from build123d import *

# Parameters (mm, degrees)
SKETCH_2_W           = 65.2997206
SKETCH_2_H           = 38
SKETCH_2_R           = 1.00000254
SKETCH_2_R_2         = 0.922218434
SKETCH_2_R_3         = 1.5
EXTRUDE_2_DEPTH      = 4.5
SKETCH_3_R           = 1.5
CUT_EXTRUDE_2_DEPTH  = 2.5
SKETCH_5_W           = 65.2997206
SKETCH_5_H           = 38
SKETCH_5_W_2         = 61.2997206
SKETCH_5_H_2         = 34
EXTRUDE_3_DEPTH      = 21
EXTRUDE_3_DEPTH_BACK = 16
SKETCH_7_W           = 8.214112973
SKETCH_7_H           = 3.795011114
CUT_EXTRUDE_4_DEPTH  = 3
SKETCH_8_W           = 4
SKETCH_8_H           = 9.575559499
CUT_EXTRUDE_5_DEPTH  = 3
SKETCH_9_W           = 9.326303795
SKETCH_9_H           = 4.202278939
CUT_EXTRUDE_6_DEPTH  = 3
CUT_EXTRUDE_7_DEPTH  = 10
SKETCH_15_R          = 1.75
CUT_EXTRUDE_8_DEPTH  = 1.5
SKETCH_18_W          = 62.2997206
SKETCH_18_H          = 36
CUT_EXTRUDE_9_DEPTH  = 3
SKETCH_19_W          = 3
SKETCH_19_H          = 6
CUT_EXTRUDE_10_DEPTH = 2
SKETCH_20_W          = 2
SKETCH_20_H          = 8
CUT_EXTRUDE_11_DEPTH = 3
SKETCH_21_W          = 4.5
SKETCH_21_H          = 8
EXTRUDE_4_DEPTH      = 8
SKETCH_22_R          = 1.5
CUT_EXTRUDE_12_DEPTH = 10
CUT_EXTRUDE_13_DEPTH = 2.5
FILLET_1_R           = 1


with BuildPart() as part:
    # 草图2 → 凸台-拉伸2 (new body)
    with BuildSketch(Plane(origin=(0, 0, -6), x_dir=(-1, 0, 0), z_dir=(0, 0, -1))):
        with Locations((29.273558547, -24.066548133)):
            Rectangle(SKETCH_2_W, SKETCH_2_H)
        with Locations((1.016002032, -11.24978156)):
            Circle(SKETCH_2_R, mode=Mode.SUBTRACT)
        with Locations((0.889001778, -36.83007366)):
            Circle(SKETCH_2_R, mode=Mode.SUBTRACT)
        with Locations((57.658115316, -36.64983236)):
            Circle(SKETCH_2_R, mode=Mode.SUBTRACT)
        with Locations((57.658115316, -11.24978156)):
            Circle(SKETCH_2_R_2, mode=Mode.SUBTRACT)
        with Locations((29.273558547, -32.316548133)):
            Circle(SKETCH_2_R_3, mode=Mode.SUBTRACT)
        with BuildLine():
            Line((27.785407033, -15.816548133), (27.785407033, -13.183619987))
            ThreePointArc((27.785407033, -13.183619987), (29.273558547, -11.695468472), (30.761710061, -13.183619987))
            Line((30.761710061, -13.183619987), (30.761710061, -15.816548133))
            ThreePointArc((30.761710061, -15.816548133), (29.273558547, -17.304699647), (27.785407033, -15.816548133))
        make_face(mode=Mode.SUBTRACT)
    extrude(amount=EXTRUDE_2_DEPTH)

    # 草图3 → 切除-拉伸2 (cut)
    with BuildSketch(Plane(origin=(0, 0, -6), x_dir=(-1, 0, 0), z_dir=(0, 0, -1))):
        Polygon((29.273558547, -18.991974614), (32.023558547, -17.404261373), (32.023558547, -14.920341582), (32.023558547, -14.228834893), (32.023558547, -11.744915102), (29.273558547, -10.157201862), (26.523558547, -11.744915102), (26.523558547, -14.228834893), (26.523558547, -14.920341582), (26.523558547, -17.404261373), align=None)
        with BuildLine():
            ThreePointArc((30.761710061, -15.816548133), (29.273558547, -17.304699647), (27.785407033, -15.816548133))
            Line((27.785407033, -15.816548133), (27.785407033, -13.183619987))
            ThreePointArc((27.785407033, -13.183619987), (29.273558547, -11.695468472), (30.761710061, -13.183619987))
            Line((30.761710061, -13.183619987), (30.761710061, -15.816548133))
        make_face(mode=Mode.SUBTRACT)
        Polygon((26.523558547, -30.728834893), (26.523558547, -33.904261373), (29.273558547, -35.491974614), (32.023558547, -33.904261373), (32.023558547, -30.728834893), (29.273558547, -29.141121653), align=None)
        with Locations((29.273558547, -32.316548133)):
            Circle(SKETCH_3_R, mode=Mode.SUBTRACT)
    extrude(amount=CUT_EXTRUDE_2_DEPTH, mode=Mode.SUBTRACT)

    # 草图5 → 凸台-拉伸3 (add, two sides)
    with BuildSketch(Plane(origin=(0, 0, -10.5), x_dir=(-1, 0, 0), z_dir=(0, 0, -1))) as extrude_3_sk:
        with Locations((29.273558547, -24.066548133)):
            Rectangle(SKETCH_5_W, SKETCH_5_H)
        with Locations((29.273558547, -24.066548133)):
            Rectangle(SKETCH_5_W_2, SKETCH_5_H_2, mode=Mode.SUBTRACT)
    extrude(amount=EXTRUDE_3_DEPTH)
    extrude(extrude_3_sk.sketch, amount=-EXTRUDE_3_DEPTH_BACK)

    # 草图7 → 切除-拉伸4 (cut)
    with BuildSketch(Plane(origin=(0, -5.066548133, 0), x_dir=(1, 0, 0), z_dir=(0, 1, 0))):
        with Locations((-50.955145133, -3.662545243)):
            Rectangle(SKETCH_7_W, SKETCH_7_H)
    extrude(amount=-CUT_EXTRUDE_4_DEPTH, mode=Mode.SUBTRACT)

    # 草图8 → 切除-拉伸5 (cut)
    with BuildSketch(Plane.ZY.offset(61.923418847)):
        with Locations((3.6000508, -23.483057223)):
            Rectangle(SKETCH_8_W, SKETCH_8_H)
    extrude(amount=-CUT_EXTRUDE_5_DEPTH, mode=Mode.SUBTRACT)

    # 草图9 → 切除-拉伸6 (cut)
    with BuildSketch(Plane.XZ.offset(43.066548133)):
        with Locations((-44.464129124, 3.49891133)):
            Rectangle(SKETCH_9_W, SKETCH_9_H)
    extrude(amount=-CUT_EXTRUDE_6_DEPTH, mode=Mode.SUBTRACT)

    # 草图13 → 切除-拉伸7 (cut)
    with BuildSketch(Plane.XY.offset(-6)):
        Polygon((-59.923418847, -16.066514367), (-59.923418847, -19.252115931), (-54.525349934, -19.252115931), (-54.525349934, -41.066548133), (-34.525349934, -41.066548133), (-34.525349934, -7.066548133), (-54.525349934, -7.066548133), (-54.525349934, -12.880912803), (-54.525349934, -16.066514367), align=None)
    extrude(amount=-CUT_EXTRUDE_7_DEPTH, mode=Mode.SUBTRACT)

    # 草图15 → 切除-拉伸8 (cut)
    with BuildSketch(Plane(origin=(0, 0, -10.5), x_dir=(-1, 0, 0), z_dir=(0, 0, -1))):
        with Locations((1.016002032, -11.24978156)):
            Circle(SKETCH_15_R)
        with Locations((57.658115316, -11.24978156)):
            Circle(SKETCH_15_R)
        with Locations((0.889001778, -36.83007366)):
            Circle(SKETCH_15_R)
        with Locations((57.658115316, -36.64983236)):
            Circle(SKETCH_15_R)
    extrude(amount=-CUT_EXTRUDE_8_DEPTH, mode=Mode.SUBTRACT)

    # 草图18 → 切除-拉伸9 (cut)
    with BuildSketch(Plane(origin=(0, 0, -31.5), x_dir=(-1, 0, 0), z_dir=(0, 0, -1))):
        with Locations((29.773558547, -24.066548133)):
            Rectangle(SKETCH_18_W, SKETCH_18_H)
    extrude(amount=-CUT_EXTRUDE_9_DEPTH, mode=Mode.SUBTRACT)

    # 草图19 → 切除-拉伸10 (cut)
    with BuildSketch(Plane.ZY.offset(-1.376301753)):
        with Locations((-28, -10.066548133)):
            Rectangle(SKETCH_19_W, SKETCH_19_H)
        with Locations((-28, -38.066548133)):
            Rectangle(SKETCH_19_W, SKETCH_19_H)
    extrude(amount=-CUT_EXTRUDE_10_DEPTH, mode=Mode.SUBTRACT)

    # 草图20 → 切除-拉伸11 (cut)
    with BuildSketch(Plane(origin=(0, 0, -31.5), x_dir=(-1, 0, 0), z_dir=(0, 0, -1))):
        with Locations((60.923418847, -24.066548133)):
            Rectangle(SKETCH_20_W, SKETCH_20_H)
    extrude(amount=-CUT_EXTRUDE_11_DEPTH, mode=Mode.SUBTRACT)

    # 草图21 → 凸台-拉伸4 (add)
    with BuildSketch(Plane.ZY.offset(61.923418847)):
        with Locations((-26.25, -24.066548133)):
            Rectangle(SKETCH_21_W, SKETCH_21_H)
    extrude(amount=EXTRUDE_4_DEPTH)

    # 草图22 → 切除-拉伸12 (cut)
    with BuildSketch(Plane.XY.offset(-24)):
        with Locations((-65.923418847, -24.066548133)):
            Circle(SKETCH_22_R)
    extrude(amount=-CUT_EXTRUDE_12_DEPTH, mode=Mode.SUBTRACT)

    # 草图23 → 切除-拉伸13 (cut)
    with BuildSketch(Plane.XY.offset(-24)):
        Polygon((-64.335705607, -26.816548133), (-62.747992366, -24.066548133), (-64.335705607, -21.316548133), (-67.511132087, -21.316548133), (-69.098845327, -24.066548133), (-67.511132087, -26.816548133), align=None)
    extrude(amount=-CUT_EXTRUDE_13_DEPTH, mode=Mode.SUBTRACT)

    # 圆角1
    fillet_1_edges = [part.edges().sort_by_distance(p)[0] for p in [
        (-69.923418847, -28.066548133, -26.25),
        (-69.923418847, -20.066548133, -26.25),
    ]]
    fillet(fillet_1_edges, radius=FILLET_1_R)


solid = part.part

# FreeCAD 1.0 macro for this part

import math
import FreeCAD as App
import Part
import Sketcher

V = App.Vector
Q = App.Units.Quantity


def edges_at(feature, points):
    """Names of the edges that pass closest to the given points."""
    edges = feature.Shape.Edges
    near = lambda p: min(range(len(edges)), key=lambda i: edges[i].distToShape(Part.Vertex(*p))[0])
    return sorted({f"Edge{near(p) + 1}" for p in points})


def add_polygon(sketch, points):
    """Adds a closed chain of lines whose ends are joined by coincident constraints."""
    first, n = sketch.GeometryCount, len(points)
    for a, b in zip(points, points[1:] + points[:1]):
        sketch.addGeometry(Part.LineSegment(App.Vector(*a, 0), App.Vector(*b, 0)), False)
    for i in range(n):
        sketch.addConstraint(Sketcher.Constraint("Coincident", first + i, 2, first + (i + 1) % n, 1))

doc = App.newDocument("Part")
body = doc.addObject("PartDesign::Body", "Body")

sketch1 = doc.addObject("Sketcher::SketchObject", "Sketch")
body.addObject(sketch1)
sketch1.AttachmentSupport = (doc.XY_Plane, [""])
sketch1.MapMode = "FlatFace"
sketch1.AttachmentOffset = App.Placement(V(0, 0, -6), App.Rotation())
add_polygon(sketch1, [(3.4, -5.1), (3.4, -43.1), (-61.9, -43.1), (-61.9, -5.1)])
sketch1.addGeometry(Part.Circle(V(-0.9, -36.8, 0), V(0, 0, 1), 1), False)
sketch1.addGeometry(Part.Circle(V(-29.3, -32.3, 0), V(0, 0, 1), 1.5), False)
sketch1.addGeometry(Part.Circle(V(-57.7, -36.6, 0), V(0, 0, 1), 1), False)
sketch1.addGeometry(Part.Circle(V(-1, -11.2, 0), V(0, 0, 1), 1), False)
sketch1.addGeometry(Part.ArcOfCircle(Part.Circle(V(-29.3, -15.8, 0), V(0, 0, 1), 1.5), math.radians(180), math.radians(360)), False)
sketch1.addGeometry(Part.LineSegment(V(-27.8, -15.8, 0), V(-27.8, -13.2, 0)), False)
sketch1.addGeometry(Part.ArcOfCircle(Part.Circle(V(-29.3, -13.2, 0), V(0, 0, 1), 1.5), math.radians(0), math.radians(180)), False)
sketch1.addGeometry(Part.LineSegment(V(-30.8, -13.2, 0), V(-30.8, -15.8, 0)), False)
sketch1.addGeometry(Part.Circle(V(-57.7, -11.2, 0), V(0, 0, 1), 0.9), False)
sketch1.addConstraint(Sketcher.Constraint("Tangent", 8, 2, 9, 1))
sketch1.addConstraint(Sketcher.Constraint("Tangent", 9, 2, 10, 1))
sketch1.addConstraint(Sketcher.Constraint("Tangent", 10, 2, 11, 1))
sketch1.addConstraint(Sketcher.Constraint("Tangent", 11, 2, 8, 1))
sketch1.addConstraint(Sketcher.Constraint("Vertical", 0))
sketch1.addConstraint(Sketcher.Constraint("Horizontal", 1))
sketch1.addConstraint(Sketcher.Constraint("Vertical", 2))
sketch1.addConstraint(Sketcher.Constraint("Horizontal", 3))
sketch1.addConstraint(Sketcher.Constraint("Vertical", 9))
sketch1.addConstraint(Sketcher.Constraint("Vertical", 11))
sketch1.addConstraint(Sketcher.Constraint("Equal", 4, 6))
sketch1.addConstraint(Sketcher.Constraint("Equal", 6, 7))
sketch1.addConstraint(Sketcher.Constraint("Horizontal", 7, 3, 12, 3))
sketch1.addConstraint(Sketcher.Constraint("Vertical", 5, 3, 8, 3))
sketch1.addConstraint(Sketcher.Constraint("Vertical", 6, 3, 12, 3))
sketch1.addConstraint(Sketcher.Constraint("Diameter", 5, Q("3 mm")))
sketch1.addConstraint(Sketcher.Constraint("DistanceY", 0, 2, 0, 1, Q("38 mm")))
sketch1.addConstraint(Sketcher.Constraint("DistanceY", 5, 3, 8, 3, Q("16.5 mm")))
sketch1.addConstraint(Sketcher.Constraint("Radius", 8, Q("1.488152 mm")))
sketch1.addConstraint(Sketcher.Constraint("DistanceY", 0, 2, 5, 3, Q("10.75 mm")))
sketch1.addConstraint(Sketcher.Constraint("Diameter", 4, Q("2.000005 mm")))
sketch1.addConstraint(Sketcher.Constraint("Diameter", 12, Q("1.844437 mm")))
sketch1.addConstraint(Sketcher.Constraint("DistanceX", 4, 3, -1, 1, Q("0.889002 mm")))
sketch1.addConstraint(Sketcher.Constraint("DistanceX", 7, 3, 4, 3, Q("0.127 mm")))
sketch1.addConstraint(Sketcher.Constraint("DistanceX", 1, 2, 1, 1, Q("65.299721 mm")))
sketch1.addConstraint(Sketcher.Constraint("DistanceY", 9, 1, 9, 2, Q("2.632928 mm")))
sketch1.addConstraint(Sketcher.Constraint("DistanceX", -1, 1, 0, 2, Q("3.376302 mm")))
sketch1.addConstraint(Sketcher.Constraint("DistanceX", 5, 3, -1, 1, Q("29.273559 mm")))
sketch1.addConstraint(Sketcher.Constraint("DistanceY", 5, 3, -1, 1, Q("32.316548 mm")))
sketch1.addConstraint(Sketcher.Constraint("DistanceY", 7, 3, -1, 1, Q("11.249782 mm")))
sketch1.addConstraint(Sketcher.Constraint("DistanceY", 4, 3, 6, 3, Q("0.180241 mm")))
sketch1.addConstraint(Sketcher.Constraint("DistanceY", 6, 3, 7, 3, Q("25.400051 mm")))
sketch1.addConstraint(Sketcher.Constraint("DistanceX", 12, 3, 8, 2, Q("29.872708 mm")))
pad1 = doc.addObject("PartDesign::Pad", "Pad")
body.addObject(pad1)
pad1.Profile = sketch1
pad1.Length = 4.5
pad1.Reversed = True

sketch2 = doc.addObject("Sketcher::SketchObject", "Sketch001")
body.addObject(sketch2)
sketch2.AttachmentSupport = (doc.XY_Plane, [""])
sketch2.MapMode = "FlatFace"
sketch2.AttachmentOffset = App.Placement(V(0, 0, -6), App.Rotation())
add_polygon(sketch2, [(-29.3, -19), (-32, -17.4), (-32, -11.7), (-29.3, -10.2), (-26.5, -11.7), (-26.5, -17.4)])
sketch2.addGeometry(Part.LineSegment(V(-30.8, -13.2, 0), V(-30.8, -15.8, 0)), False)
sketch2.addGeometry(Part.ArcOfCircle(Part.Circle(V(-29.3, -15.8, 0), V(0, 0, 1), 1.5), math.radians(180), math.radians(360)), False)
sketch2.addGeometry(Part.LineSegment(V(-27.8, -15.8, 0), V(-27.8, -13.2, 0)), False)
sketch2.addGeometry(Part.ArcOfCircle(Part.Circle(V(-29.3, -13.2, 0), V(0, 0, 1), 1.5), math.radians(0), math.radians(180)), False)
add_polygon(sketch2, [(-26.5, -30.7), (-26.5, -33.9), (-29.3, -35.5), (-32, -33.9), (-32, -30.7), (-29.3, -29.1)])
sketch2.addGeometry(Part.Circle(V(-29.3, -32.3, 0), V(0, 0, 1), 1.5), False)
sketch2.addConstraint(Sketcher.Constraint("Tangent", 6, 2, 7, 1))
sketch2.addConstraint(Sketcher.Constraint("Tangent", 7, 2, 8, 1))
sketch2.addConstraint(Sketcher.Constraint("Tangent", 8, 2, 9, 1))
sketch2.addConstraint(Sketcher.Constraint("Tangent", 9, 2, 6, 1))
sketch2.addConstraint(Sketcher.Constraint("Vertical", 1))
sketch2.addConstraint(Sketcher.Constraint("Vertical", 4))
sketch2.addConstraint(Sketcher.Constraint("Vertical", 6))
sketch2.addConstraint(Sketcher.Constraint("Vertical", 8))
sketch2.addConstraint(Sketcher.Constraint("Vertical", 10))
sketch2.addConstraint(Sketcher.Constraint("Vertical", 13))
sketch2.addConstraint(Sketcher.Constraint("Parallel", 0, 3))
sketch2.addConstraint(Sketcher.Constraint("Parallel", 2, 5))
sketch2.addConstraint(Sketcher.Constraint("Parallel", 5, 11))
sketch2.addConstraint(Sketcher.Constraint("Parallel", 3, 12))
sketch2.addConstraint(Sketcher.Constraint("Parallel", 11, 14))
sketch2.addConstraint(Sketcher.Constraint("Parallel", 12, 15))
sketch2.addConstraint(Sketcher.Constraint("Horizontal", 1, 2, 3, 2))
sketch2.addConstraint(Sketcher.Constraint("Horizontal", 0, 2, 4, 2))
sketch2.addConstraint(Sketcher.Constraint("Horizontal", 10, 2, 12, 2))
sketch2.addConstraint(Sketcher.Constraint("Horizontal", 13, 2, 15, 2))
sketch2.addConstraint(Sketcher.Constraint("Vertical", 9, 3, 16, 3))
sketch2.addConstraint(Sketcher.Constraint("Vertical", 16, 3, 2, 2))
sketch2.addConstraint(Sketcher.Constraint("Vertical", 2, 2, 5, 2))
sketch2.addConstraint(Sketcher.Constraint("Vertical", 4, 2, 10, 2))
sketch2.addConstraint(Sketcher.Constraint("Vertical", 5, 2, 11, 2))
sketch2.addConstraint(Sketcher.Constraint("Diameter", 16, Q("3 mm")))
sketch2.addConstraint(Sketcher.Constraint("Angle", 0, Q("150 deg")))
sketch2.addConstraint(Sketcher.Constraint("DistanceY", 16, 3, 7, 3, Q("16.5 mm")))
sketch2.addConstraint(Sketcher.Constraint("DistanceX", 1, 2, 3, 2, Q("5.5 mm")))
sketch2.addConstraint(Sketcher.Constraint("DistanceY", 10, 2, 4, 2, Q("16.5 mm")))
sketch2.addConstraint(Sketcher.Constraint("Radius", 7, Q("1.488152 mm")))
sketch2.addConstraint(Sketcher.Constraint("DistanceY", 6, 2, 6, 1, Q("2.632928 mm")))
sketch2.addConstraint(Sketcher.Constraint("DistanceY", 2, 2, -1, 1, Q("10.157202 mm")))
sketch2.addConstraint(Sketcher.Constraint("DistanceY", 1, 1, 1, 2, Q("5.659346 mm")))
sketch2.addConstraint(Sketcher.Constraint("DistanceY", 10, 2, 10, 1, Q("3.175426 mm")))
sketch2.addConstraint(Sketcher.Constraint("DistanceX", 7, 3, -1, 1, Q("29.273559 mm")))
sketch2.addConstraint(Sketcher.Constraint("DistanceY", 7, 3, -1, 1, Q("15.816548 mm")))
pocket1 = doc.addObject("PartDesign::Pocket", "Pocket")
body.addObject(pocket1)
pocket1.Profile = sketch2
pocket1.Length = 2.5

sketch3 = doc.addObject("Sketcher::SketchObject", "Sketch002")
body.addObject(sketch3)
sketch3.AttachmentSupport = (doc.XY_Plane, [""])
sketch3.MapMode = "FlatFace"
sketch3.AttachmentOffset = App.Placement(V(0, 0, -10.5), App.Rotation())
add_polygon(sketch3, [(3, -5), (3, -43), (-62, -43), (-62, -5)])
add_polygon(sketch3, [(-60, -41), (1, -41), (1, -7), (-60, -7)])
sketch3.addConstraint(Sketcher.Constraint("Vertical", 0))
sketch3.addConstraint(Sketcher.Constraint("Horizontal", 1))
sketch3.addConstraint(Sketcher.Constraint("Vertical", 2))
sketch3.addConstraint(Sketcher.Constraint("Horizontal", 3))
sketch3.addConstraint(Sketcher.Constraint("Horizontal", 4))
sketch3.addConstraint(Sketcher.Constraint("Vertical", 5))
sketch3.addConstraint(Sketcher.Constraint("Horizontal", 6))
sketch3.addConstraint(Sketcher.Constraint("Vertical", 7))
sketch3.addConstraint(Sketcher.Constraint("DistanceY", 0, 2, 0, 1, Q("38 mm")))
sketch3.addConstraint(Sketcher.Constraint("DistanceY", 5, 1, 5, 2, Q("34 mm")))
sketch3.addConstraint(Sketcher.Constraint("DistanceX", 4, 2, 0, 2, Q("2 mm")))
sketch3.addConstraint(Sketcher.Constraint("DistanceY", 0, 2, 4, 2, Q("2 mm")))
sketch3.addConstraint(Sketcher.Constraint("DistanceX", 2, 2, 6, 2, Q("2 mm")))
sketch3.addConstraint(Sketcher.Constraint("DistanceX", 1, 2, 1, 1, Q("65.299721 mm")))
sketch3.addConstraint(Sketcher.Constraint("DistanceX", -1, 1, 0, 2, Q("3.376302 mm")))
sketch3.addConstraint(Sketcher.Constraint("DistanceY", 0, 2, -1, 1, Q("43.066548 mm")))
pad2 = doc.addObject("PartDesign::Pad", "Pad001")
body.addObject(pad2)
pad2.Profile = sketch3
pad2.Type = "TwoLengths"
pad2.Length = 21
pad2.Length2 = 16
pad2.Reversed = True

sketch4 = doc.addObject("Sketcher::SketchObject", "Sketch003")
body.addObject(sketch4)
sketch4.AttachmentSupport = (doc.XZ_Plane, [""])
sketch4.MapMode = "FlatFace"
sketch4.AttachmentOffset = App.Placement(V(0, 0, 5.066548), App.Rotation())
add_polygon(sketch4, [(-55.1, 1.8), (-55.1, 5.6), (-46.8, 5.6), (-46.8, 1.8)])
sketch4.addConstraint(Sketcher.Constraint("Vertical", 0))
sketch4.addConstraint(Sketcher.Constraint("Horizontal", 1))
sketch4.addConstraint(Sketcher.Constraint("Vertical", 2))
sketch4.addConstraint(Sketcher.Constraint("Horizontal", 3))
sketch4.addConstraint(Sketcher.Constraint("DistanceY", 0, 1, 0, 2, Q("3.795011 mm")))
sketch4.addConstraint(Sketcher.Constraint("DistanceX", 0, 2, -1, 1, Q("55.062202 mm")))
sketch4.addConstraint(Sketcher.Constraint("DistanceX", 1, 1, 1, 2, Q("8.214113 mm")))
sketch4.addConstraint(Sketcher.Constraint("DistanceY", -1, 1, 0, 2, Q("5.560051 mm")))
pocket2 = doc.addObject("PartDesign::Pocket", "Pocket001")
body.addObject(pocket2)
pocket2.Profile = sketch4
pocket2.Length = 3
pocket2.Reversed = True

sketch5 = doc.addObject("Sketcher::SketchObject", "Sketch004")
body.addObject(sketch5)
sketch5.AttachmentSupport = (doc.YZ_Plane, [""])
sketch5.MapMode = "FlatFace"
sketch5.AttachmentOffset = App.Placement(V(0, 0, -61.923419), App.Rotation())
add_polygon(sketch5, [(-18.7, 1.6), (-28.3, 1.6), (-28.3, 5.6), (-18.7, 5.6)])
sketch5.addConstraint(Sketcher.Constraint("Horizontal", 0))
sketch5.addConstraint(Sketcher.Constraint("Vertical", 1))
sketch5.addConstraint(Sketcher.Constraint("Horizontal", 2))
sketch5.addConstraint(Sketcher.Constraint("Vertical", 3))
sketch5.addConstraint(Sketcher.Constraint("DistanceY", 1, 1, 1, 2, Q("4 mm")))
sketch5.addConstraint(Sketcher.Constraint("DistanceX", 0, 2, 0, 1, Q("9.575559 mm")))
sketch5.addConstraint(Sketcher.Constraint("DistanceY", -1, 1, 0, 2, Q("1.600051 mm")))
sketch5.addConstraint(Sketcher.Constraint("DistanceX", 0, 2, -1, 1, Q("28.270837 mm")))
pocket3 = doc.addObject("PartDesign::Pocket", "Pocket002")
body.addObject(pocket3)
pocket3.Profile = sketch5
pocket3.Length = 3
pocket3.Reversed = True

sketch6 = doc.addObject("Sketcher::SketchObject", "Sketch005")
body.addObject(sketch6)
sketch6.AttachmentSupport = (doc.XZ_Plane, [""])
sketch6.MapMode = "FlatFace"
sketch6.AttachmentOffset = App.Placement(V(0, 0, 43.066548), App.Rotation())
add_polygon(sketch6, [(-49.1, 5.6), (-49.1, 1.4), (-39.8, 1.4), (-39.8, 5.6)])
sketch6.addConstraint(Sketcher.Constraint("Vertical", 0))
sketch6.addConstraint(Sketcher.Constraint("Horizontal", 1))
sketch6.addConstraint(Sketcher.Constraint("Vertical", 2))
sketch6.addConstraint(Sketcher.Constraint("Horizontal", 3))
sketch6.addConstraint(Sketcher.Constraint("DistanceY", 0, 2, 0, 1, Q("4.202279 mm")))
sketch6.addConstraint(Sketcher.Constraint("DistanceX", 1, 1, 1, 2, Q("9.326304 mm")))
sketch6.addConstraint(Sketcher.Constraint("DistanceX", 0, 2, -1, 1, Q("49.127281 mm")))
sketch6.addConstraint(Sketcher.Constraint("DistanceY", -1, 1, 0, 2, Q("1.397772 mm")))
pocket4 = doc.addObject("PartDesign::Pocket", "Pocket003")
body.addObject(pocket4)
pocket4.Profile = sketch6
pocket4.Length = 3

sketch7 = doc.addObject("Sketcher::SketchObject", "Sketch006")
body.addObject(sketch7)
sketch7.AttachmentSupport = (doc.XY_Plane, [""])
sketch7.MapMode = "FlatFace"
sketch7.AttachmentOffset = App.Placement(V(0, 0, -6), App.Rotation())
add_polygon(sketch7, [(-59.9, -16.1), (-59.9, -19.3), (-54.5, -19.3), (-54.5, -41.1), (-34.5, -41.1), (-34.5, -7.1), (-54.5, -7.1), (-54.5, -16.1)])
sketch7.addConstraint(Sketcher.Constraint("Vertical", 0))
sketch7.addConstraint(Sketcher.Constraint("Horizontal", 1))
sketch7.addConstraint(Sketcher.Constraint("Vertical", 2))
sketch7.addConstraint(Sketcher.Constraint("Horizontal", 3))
sketch7.addConstraint(Sketcher.Constraint("Vertical", 4))
sketch7.addConstraint(Sketcher.Constraint("Horizontal", 5))
sketch7.addConstraint(Sketcher.Constraint("Vertical", 6))
sketch7.addConstraint(Sketcher.Constraint("Horizontal", 7))
sketch7.addConstraint(Sketcher.Constraint("Vertical", 2, 2, 5, 2))
sketch7.addConstraint(Sketcher.Constraint("DistanceX", 3, 1, 3, 2, Q("20 mm")))
sketch7.addConstraint(Sketcher.Constraint("DistanceY", 4, 1, 4, 2, Q("34 mm")))
sketch7.addConstraint(Sketcher.Constraint("DistanceY", 0, 2, 0, 1, Q("3.185602 mm")))
sketch7.addConstraint(Sketcher.Constraint("DistanceX", 1, 1, 1, 2, Q("5.398069 mm")))
sketch7.addConstraint(Sketcher.Constraint("DistanceY", 2, 2, 2, 1, Q("21.814432 mm")))
sketch7.addConstraint(Sketcher.Constraint("DistanceX", 0, 2, -1, 1, Q("59.923419 mm")))
sketch7.addConstraint(Sketcher.Constraint("DistanceY", 2, 2, -1, 1, Q("41.066548 mm")))
pocket5 = doc.addObject("PartDesign::Pocket", "Pocket004")
body.addObject(pocket5)
pocket5.Profile = sketch7
pocket5.Length = 10

sketch8 = doc.addObject("Sketcher::SketchObject", "Sketch007")
body.addObject(sketch8)
sketch8.AttachmentSupport = (doc.XY_Plane, [""])
sketch8.MapMode = "FlatFace"
sketch8.AttachmentOffset = App.Placement(V(0, 0, -10.5), App.Rotation())
sketch8.addGeometry(Part.Circle(V(-1, -11.2, 0), V(0, 0, 1), 1.8), False)
sketch8.addGeometry(Part.Circle(V(-57.7, -11.2, 0), V(0, 0, 1), 1.8), False)
sketch8.addGeometry(Part.Circle(V(-0.9, -36.8, 0), V(0, 0, 1), 1.8), False)
sketch8.addGeometry(Part.Circle(V(-57.7, -36.6, 0), V(0, 0, 1), 1.8), False)
sketch8.addConstraint(Sketcher.Constraint("Equal", 0, 1))
sketch8.addConstraint(Sketcher.Constraint("Equal", 1, 2))
sketch8.addConstraint(Sketcher.Constraint("Equal", 2, 3))
sketch8.addConstraint(Sketcher.Constraint("Horizontal", 0, 3, 1, 3))
sketch8.addConstraint(Sketcher.Constraint("Vertical", 1, 3, 3, 3))
sketch8.addConstraint(Sketcher.Constraint("Diameter", 0, Q("3.5 mm")))
sketch8.addConstraint(Sketcher.Constraint("DistanceX", 2, 3, -1, 1, Q("0.889002 mm")))
sketch8.addConstraint(Sketcher.Constraint("DistanceX", 0, 3, 2, 3, Q("0.127 mm")))
sketch8.addConstraint(Sketcher.Constraint("DistanceY", 0, 3, -1, 1, Q("11.249782 mm")))
sketch8.addConstraint(Sketcher.Constraint("DistanceY", 3, 3, 1, 3, Q("25.400051 mm")))
sketch8.addConstraint(Sketcher.Constraint("DistanceY", 2, 3, 3, 3, Q("0.180241 mm")))
sketch8.addConstraint(Sketcher.Constraint("DistanceX", 1, 3, -1, 1, Q("57.658115 mm")))
pocket6 = doc.addObject("PartDesign::Pocket", "Pocket005")
body.addObject(pocket6)
pocket6.Profile = sketch8
pocket6.Length = 1.5
pocket6.Reversed = True

sketch9 = doc.addObject("Sketcher::SketchObject", "Sketch008")
body.addObject(sketch9)
sketch9.AttachmentSupport = (doc.XY_Plane, [""])
sketch9.MapMode = "FlatFace"
sketch9.AttachmentOffset = App.Placement(V(0, 0, -31.5), App.Rotation())
add_polygon(sketch9, [(1, -6), (1, -42), (-61, -42), (-61, -6)])
sketch9.addConstraint(Sketcher.Constraint("Vertical", 0))
sketch9.addConstraint(Sketcher.Constraint("Horizontal", 1))
sketch9.addConstraint(Sketcher.Constraint("Vertical", 2))
sketch9.addConstraint(Sketcher.Constraint("Horizontal", 3))
sketch9.addConstraint(Sketcher.Constraint("DistanceY", 0, 2, 0, 1, Q("36 mm")))
sketch9.addConstraint(Sketcher.Constraint("DistanceX", 1, 2, 1, 1, Q("62.299721 mm")))
sketch9.addConstraint(Sketcher.Constraint("DistanceX", -1, 1, 0, 2, Q("1.376302 mm")))
sketch9.addConstraint(Sketcher.Constraint("DistanceY", 0, 2, -1, 1, Q("42.066548 mm")))
pocket7 = doc.addObject("PartDesign::Pocket", "Pocket006")
body.addObject(pocket7)
pocket7.Profile = sketch9
pocket7.Length = 3
pocket7.Reversed = True

sketch10 = doc.addObject("Sketcher::SketchObject", "Sketch009")
body.addObject(sketch10)
sketch10.AttachmentSupport = (doc.YZ_Plane, [""])
sketch10.MapMode = "FlatFace"
sketch10.AttachmentOffset = App.Placement(V(0, 0, 1.376302), App.Rotation())
add_polygon(sketch10, [(-7.1, -29.5), (-13.1, -29.5), (-13.1, -26.5), (-7.1, -26.5)])
add_polygon(sketch10, [(-35.1, -29.5), (-41.1, -29.5), (-41.1, -26.5), (-35.1, -26.5)])
sketch10.addConstraint(Sketcher.Constraint("Horizontal", 0))
sketch10.addConstraint(Sketcher.Constraint("Vertical", 1))
sketch10.addConstraint(Sketcher.Constraint("Horizontal", 2))
sketch10.addConstraint(Sketcher.Constraint("Vertical", 3))
sketch10.addConstraint(Sketcher.Constraint("Horizontal", 4))
sketch10.addConstraint(Sketcher.Constraint("Vertical", 5))
sketch10.addConstraint(Sketcher.Constraint("Horizontal", 6))
sketch10.addConstraint(Sketcher.Constraint("Vertical", 7))
sketch10.addConstraint(Sketcher.Constraint("Horizontal", 3, 2, 4, 2))
sketch10.addConstraint(Sketcher.Constraint("Horizontal", 2, 2, 5, 2))
sketch10.addConstraint(Sketcher.Constraint("Equal", 2, 4))
sketch10.addConstraint(Sketcher.Constraint("DistanceX", 0, 2, 0, 1, Q("6 mm")))
sketch10.addConstraint(Sketcher.Constraint("DistanceY", 1, 1, 1, 2, Q("3 mm")))
sketch10.addConstraint(Sketcher.Constraint("DistanceX", 4, 2, 0, 2, Q("28 mm")))
sketch10.addConstraint(Sketcher.Constraint("DistanceY", 0, 2, -1, 1, Q("29.5 mm")))
sketch10.addConstraint(Sketcher.Constraint("DistanceX", 0, 2, -1, 1, Q("13.066548 mm")))
pocket8 = doc.addObject("PartDesign::Pocket", "Pocket007")
body.addObject(pocket8)
pocket8.Profile = sketch10
pocket8.Length = 2
pocket8.Reversed = True

sketch11 = doc.addObject("Sketcher::SketchObject", "Sketch010")
body.addObject(sketch11)
sketch11.AttachmentSupport = (doc.XY_Plane, [""])
sketch11.MapMode = "FlatFace"
sketch11.AttachmentOffset = App.Placement(V(0, 0, -31.5), App.Rotation())
add_polygon(sketch11, [(-59.9, -20.1), (-59.9, -28.1), (-61.9, -28.1), (-61.9, -20.1)])
sketch11.addConstraint(Sketcher.Constraint("Vertical", 0))
sketch11.addConstraint(Sketcher.Constraint("Horizontal", 1))
sketch11.addConstraint(Sketcher.Constraint("Vertical", 2))
sketch11.addConstraint(Sketcher.Constraint("Horizontal", 3))
sketch11.addConstraint(Sketcher.Constraint("DistanceX", 1, 2, 1, 1, Q("2 mm")))
sketch11.addConstraint(Sketcher.Constraint("DistanceY", 0, 2, 0, 1, Q("8 mm")))
sketch11.addConstraint(Sketcher.Constraint("DistanceX", 0, 2, -1, 1, Q("59.923419 mm")))
sketch11.addConstraint(Sketcher.Constraint("DistanceY", 0, 2, -1, 1, Q("28.066548 mm")))
pocket9 = doc.addObject("PartDesign::Pocket", "Pocket008")
body.addObject(pocket9)
pocket9.Profile = sketch11
pocket9.Length = 3
pocket9.Reversed = True

sketch12 = doc.addObject("Sketcher::SketchObject", "Sketch011")
body.addObject(sketch12)
sketch12.AttachmentSupport = (doc.YZ_Plane, [""])
sketch12.MapMode = "FlatFace"
sketch12.AttachmentOffset = App.Placement(V(0, 0, -61.923419), App.Rotation())
add_polygon(sketch12, [(-20.1, -28.5), (-28.1, -28.5), (-28.1, -24), (-20.1, -24)])
sketch12.addConstraint(Sketcher.Constraint("Horizontal", 0))
sketch12.addConstraint(Sketcher.Constraint("Vertical", 1))
sketch12.addConstraint(Sketcher.Constraint("Horizontal", 2))
sketch12.addConstraint(Sketcher.Constraint("Vertical", 3))
sketch12.addConstraint(Sketcher.Constraint("DistanceX", 0, 2, 0, 1, Q("8 mm")))
sketch12.addConstraint(Sketcher.Constraint("DistanceY", 1, 1, 1, 2, Q("4.5 mm")))
sketch12.addConstraint(Sketcher.Constraint("DistanceY", 1, 2, -1, 1, Q("24 mm")))
sketch12.addConstraint(Sketcher.Constraint("DistanceX", 0, 2, -1, 1, Q("28.066548 mm")))
pad3 = doc.addObject("PartDesign::Pad", "Pad002")
body.addObject(pad3)
pad3.Profile = sketch12
pad3.Length = 8
pad3.Reversed = True

sketch13 = doc.addObject("Sketcher::SketchObject", "Sketch012")
body.addObject(sketch13)
sketch13.AttachmentSupport = (doc.XY_Plane, [""])
sketch13.MapMode = "FlatFace"
sketch13.AttachmentOffset = App.Placement(V(0, 0, -24), App.Rotation())
sketch13.addGeometry(Part.Circle(V(-65.9, -24.1, 0), V(0, 0, 1), 1.5), False)
sketch13.addConstraint(Sketcher.Constraint("Diameter", 0, Q("3 mm")))
sketch13.addConstraint(Sketcher.Constraint("DistanceX", 0, 3, -1, 1, Q("65.923419 mm")))
sketch13.addConstraint(Sketcher.Constraint("DistanceY", 0, 3, -1, 1, Q("24.066548 mm")))
pocket10 = doc.addObject("PartDesign::Pocket", "Pocket009")
body.addObject(pocket10)
pocket10.Profile = sketch13
pocket10.Length = 10

sketch14 = doc.addObject("Sketcher::SketchObject", "Sketch013")
body.addObject(sketch14)
sketch14.AttachmentSupport = (doc.XY_Plane, [""])
sketch14.MapMode = "FlatFace"
sketch14.AttachmentOffset = App.Placement(V(0, 0, -24), App.Rotation())
add_polygon(sketch14, [(-64.3, -26.8), (-62.7, -24.1), (-64.3, -21.3), (-67.5, -21.3), (-69.1, -24.1), (-67.5, -26.8)])
sketch14.addConstraint(Sketcher.Constraint("Horizontal", 2))
sketch14.addConstraint(Sketcher.Constraint("Horizontal", 5))
sketch14.addConstraint(Sketcher.Constraint("Parallel", 0, 3))
sketch14.addConstraint(Sketcher.Constraint("Parallel", 1, 4))
sketch14.addConstraint(Sketcher.Constraint("Horizontal", 0, 2, 3, 2))
sketch14.addConstraint(Sketcher.Constraint("Vertical", 2, 2, 4, 2))
sketch14.addConstraint(Sketcher.Constraint("Vertical", 1, 2, 5, 2))
sketch14.addConstraint(Sketcher.Constraint("Angle", 0, Q("60 deg")))
sketch14.addConstraint(Sketcher.Constraint("DistanceY", 4, 2, 2, 2, Q("5.5 mm")))
sketch14.addConstraint(Sketcher.Constraint("DistanceX", 2, 2, 2, 1, Q("3.175426 mm")))
sketch14.addConstraint(Sketcher.Constraint("DistanceY", 0, 2, -1, 1, Q("24.066548 mm")))
sketch14.addConstraint(Sketcher.Constraint("DistanceX", 0, 2, -1, 1, Q("62.747992 mm")))
pocket11 = doc.addObject("PartDesign::Pocket", "Pocket010")
body.addObject(pocket11)
pocket11.Profile = sketch14
pocket11.Length = 2.5
doc.recompute()

fillet = doc.addObject("PartDesign::Fillet", "Fillet")
body.addObject(fillet)
fillet.Base = (pocket11, edges_at(pocket11, [(-69.923, -28.067, -26.25), (-69.923, -20.067, -26.25)]))
fillet.Radius = 1

doc.recompute()
